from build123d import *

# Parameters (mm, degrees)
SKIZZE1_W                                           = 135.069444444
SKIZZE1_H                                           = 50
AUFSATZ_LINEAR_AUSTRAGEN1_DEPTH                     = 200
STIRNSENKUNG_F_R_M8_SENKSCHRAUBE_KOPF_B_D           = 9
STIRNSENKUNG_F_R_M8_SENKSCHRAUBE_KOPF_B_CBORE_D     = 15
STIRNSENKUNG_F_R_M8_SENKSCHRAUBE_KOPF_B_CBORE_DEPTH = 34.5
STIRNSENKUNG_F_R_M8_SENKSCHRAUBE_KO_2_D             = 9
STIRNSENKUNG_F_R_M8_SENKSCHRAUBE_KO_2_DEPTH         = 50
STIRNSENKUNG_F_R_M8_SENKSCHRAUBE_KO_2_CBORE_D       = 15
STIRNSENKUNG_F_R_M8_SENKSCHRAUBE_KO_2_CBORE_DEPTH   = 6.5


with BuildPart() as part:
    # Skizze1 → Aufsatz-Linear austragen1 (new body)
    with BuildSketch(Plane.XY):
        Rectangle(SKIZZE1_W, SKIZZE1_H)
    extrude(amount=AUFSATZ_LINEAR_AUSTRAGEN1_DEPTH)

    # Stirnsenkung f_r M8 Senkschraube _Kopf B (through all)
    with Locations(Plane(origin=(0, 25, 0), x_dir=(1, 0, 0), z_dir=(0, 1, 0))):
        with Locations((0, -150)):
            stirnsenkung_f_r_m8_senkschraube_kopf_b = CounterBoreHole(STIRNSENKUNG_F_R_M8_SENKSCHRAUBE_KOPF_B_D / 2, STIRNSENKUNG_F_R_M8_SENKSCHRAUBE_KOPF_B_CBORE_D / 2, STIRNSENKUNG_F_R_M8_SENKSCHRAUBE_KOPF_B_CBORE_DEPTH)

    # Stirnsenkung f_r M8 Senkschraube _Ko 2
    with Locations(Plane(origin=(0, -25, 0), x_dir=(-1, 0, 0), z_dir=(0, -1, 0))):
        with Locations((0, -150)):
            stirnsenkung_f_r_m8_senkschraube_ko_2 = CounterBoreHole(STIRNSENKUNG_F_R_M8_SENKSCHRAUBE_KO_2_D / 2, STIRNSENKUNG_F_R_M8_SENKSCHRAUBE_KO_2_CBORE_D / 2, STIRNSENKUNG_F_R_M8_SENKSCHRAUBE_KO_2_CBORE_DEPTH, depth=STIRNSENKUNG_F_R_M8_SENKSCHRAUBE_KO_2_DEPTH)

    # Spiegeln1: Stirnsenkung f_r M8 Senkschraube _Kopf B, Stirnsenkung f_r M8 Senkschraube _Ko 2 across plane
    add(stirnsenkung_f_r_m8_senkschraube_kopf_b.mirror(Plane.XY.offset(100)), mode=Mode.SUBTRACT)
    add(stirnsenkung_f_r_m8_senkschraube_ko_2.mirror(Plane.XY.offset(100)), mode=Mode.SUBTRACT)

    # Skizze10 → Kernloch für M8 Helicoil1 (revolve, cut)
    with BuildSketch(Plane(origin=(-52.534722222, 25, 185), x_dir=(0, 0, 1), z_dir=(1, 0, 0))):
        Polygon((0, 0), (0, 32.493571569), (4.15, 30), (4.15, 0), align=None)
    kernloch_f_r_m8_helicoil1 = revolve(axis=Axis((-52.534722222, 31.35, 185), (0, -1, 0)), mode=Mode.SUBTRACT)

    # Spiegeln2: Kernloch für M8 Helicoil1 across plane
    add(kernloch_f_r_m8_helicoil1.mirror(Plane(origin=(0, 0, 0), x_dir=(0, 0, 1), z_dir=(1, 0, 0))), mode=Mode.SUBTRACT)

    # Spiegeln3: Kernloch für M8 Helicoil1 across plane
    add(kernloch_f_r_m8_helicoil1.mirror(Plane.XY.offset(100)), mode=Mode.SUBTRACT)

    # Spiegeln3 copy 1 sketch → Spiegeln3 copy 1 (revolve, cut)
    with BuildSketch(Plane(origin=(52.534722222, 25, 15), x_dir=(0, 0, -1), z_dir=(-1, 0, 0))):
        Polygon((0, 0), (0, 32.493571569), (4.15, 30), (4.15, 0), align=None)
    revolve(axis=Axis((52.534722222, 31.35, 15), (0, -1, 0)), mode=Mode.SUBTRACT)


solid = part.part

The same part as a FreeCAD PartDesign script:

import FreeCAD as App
import Part
import Sketcher

V = App.Vector
Q = App.Units.Quantity

doc = App.newDocument("Part")
params = doc.addObject("Spreadsheet::Sheet", "Params")
for row, (alias, value) in enumerate([
    ("sketch1_height", "50 mm"),
    ("pad1_length", "200 mm"),
    ("sketch2_diameter", "9 mm"),
    ("hole_diameter", "9 mm"),
    ("hole_cbore_diameter", "15 mm"),
    ("hole_cbore_depth", "34.5 mm"),
    ("sketch3_diameter", "9 mm"),
    ("hole2_diameter", "9 mm"),
    ("hole2_depth", "50 mm"),
    ("hole2_cbore_diameter", "15 mm"),
    ("hole2_cbore_depth", "6.5 mm"),
    ("sketch4_width", "30 mm"),
    ("sketch4_height", "4.15 mm"),
    ("groove_angle", "360 deg"),
    ("sketch5_width", "30 mm"),
    ("sketch5_height", "4.15 mm"),
    ("groove2_angle", "360 deg"),
], start=1):
    params.set(f"A{row}", alias)
    params.set(f"B{row}", "=" + value)
    params.setAlias(f"B{row}", alias)

body = doc.addObject("PartDesign::Body", "Body")

# Sketch on XY plane
sketch1 = doc.addObject("Sketcher::SketchObject", "Sketch")
body.addObject(sketch1)
sketch1.AttachmentSupport = (doc.XY_Plane, [""])
sketch1.MapMode = "FlatFace"
sketch1.addGeometry(Part.LineSegment(V(-67.534722, 25, 0), V(-67.534722, -25, 0)), False)
sketch1.addGeometry(Part.LineSegment(V(-67.534722, -25, 0), V(67.534722, -25, 0)), False)
sketch1.addGeometry(Part.LineSegment(V(67.534722, -25, 0), V(67.534722, 25, 0)), False)
sketch1.addGeometry(Part.LineSegment(V(67.534722, 25, 0), V(-67.534722, 25, 0)), False)
sketch1.addConstraint(Sketcher.Constraint("Coincident", 0, 2, 1, 1))
sketch1.addConstraint(Sketcher.Constraint("Coincident", 1, 2, 2, 1))
sketch1.addConstraint(Sketcher.Constraint("Coincident", 2, 2, 3, 1))
sketch1.addConstraint(Sketcher.Constraint("Coincident", 3, 2, 0, 1))
sketch1.addConstraint(Sketcher.Constraint("Vertical", 0))
sketch1.addConstraint(Sketcher.Constraint("Horizontal", 1))
sketch1.addConstraint(Sketcher.Constraint("Vertical", 2))
sketch1.addConstraint(Sketcher.Constraint("Horizontal", 3))
sketch1.addConstraint(Sketcher.Constraint("Symmetric", 0, 2, 2, 2, -1, 1))
sketch1.addConstraint(Sketcher.Constraint("DistanceY", 0, 2, 0, 1, 50.0))
sketch1.addConstraint(Sketcher.Constraint("DistanceX", 1, 1, 1, 2, 135.069444))
sketch1.setExpression("Constraints[9]", "Params.sketch1_height")
pad1 = doc.addObject("PartDesign::Pad", "Pad")
body.addObject(pad1)
pad1.Profile = sketch1
pad1.setExpression("Length", "Params.pad1_length")

# Sketch on XZ plane
sketch2 = doc.addObject("Sketcher::SketchObject", "Sketch001")
body.addObject(sketch2)
sketch2.AttachmentSupport = (doc.XZ_Plane, [""])
sketch2.MapMode = "FlatFace"
sketch2.AttachmentOffset = App.Placement(V(0, 0, -25), App.Rotation())
sketch2.addGeometry(Part.Circle(V(0, 150, 0), V(0, 0, 1), 4.5), False)
sketch2.addConstraint(Sketcher.Constraint("PointOnObject", 0, 3, -2))
sketch2.addConstraint(Sketcher.Constraint("Diameter", 0, 9.0))
sketch2.addConstraint(Sketcher.Constraint("DistanceY", -1, 1, 0, 3, 150.0))
sketch2.setExpression("Constraints[1]", "Params.sketch2_diameter")
doc.recompute()
hole = doc.addObject("PartDesign::Hole", "Hole")
body.addObject(hole)
hole.Profile = sketch2
hole.ThreadType = "None"
hole.setExpression("Diameter", "Params.hole_diameter")
hole.DepthType = "ThroughAll"
hole.HoleCutType = "Counterbore"
hole.setExpression("HoleCutDiameter", "Params.hole_cbore_diameter")
hole.setExpression("HoleCutDepth", "Params.hole_cbore_depth")
hole.Reversed = True

# Sketch on XZ plane
sketch3 = doc.addObject("Sketcher::SketchObject", "Sketch002")
body.addObject(sketch3)
sketch3.AttachmentSupport = (doc.XZ_Plane, [""])
sketch3.MapMode = "FlatFace"
sketch3.AttachmentOffset = App.Placement(V(0, 0, 25), App.Rotation())
sketch3.addGeometry(Part.Circle(V(0, 150, 0), V(0, 0, 1), 4.5), False)
sketch3.addConstraint(Sketcher.Constraint("PointOnObject", 0, 3, -2))
sketch3.addConstraint(Sketcher.Constraint("Diameter", 0, 9.0))
sketch3.addConstraint(Sketcher.Constraint("DistanceY", -1, 1, 0, 3, 150.0))
sketch3.setExpression("Constraints[1]", "Params.sketch3_diameter")
doc.recompute()
hole2 = doc.addObject("PartDesign::Hole", "Hole001")
body.addObject(hole2)
hole2.Profile = sketch3
hole2.ThreadType = "None"
hole2.setExpression("Diameter", "Params.hole2_diameter")
hole2.DepthType = "Dimension"
hole2.setExpression("Depth", "Params.hole2_depth")
hole2.DrillPoint = "Flat"
hole2.HoleCutType = "Counterbore"
hole2.setExpression("HoleCutDiameter", "Params.hole2_cbore_diameter")
hole2.setExpression("HoleCutDepth", "Params.hole2_cbore_depth")
doc.recompute()

datumplane = doc.addObject("PartDesign::Plane", "DatumPlane")
body.addObject(datumplane)
datumplane.AttachmentSupport = (doc.XY_Plane, [""])
datumplane.MapMode = "FlatFace"
datumplane.AttachmentOffset = App.Placement(V(0, 0, 100), App.Rotation())
mirrored = doc.addObject("PartDesign::Mirrored", "Mirrored")
body.addObject(mirrored)
mirrored.Originals = [hole, hole2]
mirrored.MirrorPlane = (datumplane, [""])
body.Tip = mirrored

# Sketch on YZ plane
sketch4 = doc.addObject("Sketcher::SketchObject", "Sketch003")
body.addObject(sketch4)
sketch4.AttachmentSupport = (doc.YZ_Plane, [""])
sketch4.MapMode = "FlatFace"
sketch4.AttachmentOffset = App.Placement(V(0, 0, -52.534722), App.Rotation())
sketch4.addGeometry(Part.LineSegment(V(-7.493572, 185, 0), V(25, 185, 0)), False)
sketch4.addGeometry(Part.LineSegment(V(25, 185, 0), V(25, 189.15, 0)), False)
sketch4.addGeometry(Part.LineSegment(V(25, 189.15, 0), V(-5, 189.15, 0)), False)
sketch4.addGeometry(Part.LineSegment(V(-5, 189.15, 0), V(-7.493572, 185, 0)), False)
sketch4.addGeometry(Part.LineSegment(V(25, 185, 0), V(-7.493572, 185, 0)), True)  # axis
sketch4.addConstraint(Sketcher.Constraint("Coincident", 0, 2, 1, 1))
sketch4.addConstraint(Sketcher.Constraint("Coincident", 1, 2, 2, 1))
sketch4.addConstraint(Sketcher.Constraint("Coincident", 2, 2, 3, 1))
sketch4.addConstraint(Sketcher.Constraint("Coincident", 3, 2, 0, 1))
sketch4.addConstraint(Sketcher.Constraint("Horizontal", 0))
sketch4.addConstraint(Sketcher.Constraint("Vertical", 1))
sketch4.addConstraint(Sketcher.Constraint("Horizontal", 2))
sketch4.addConstraint(Sketcher.Constraint("Horizontal", 4))
sketch4.addConstraint(Sketcher.Constraint("Coincident", 4, 1, 0, 2))
sketch4.addConstraint(Sketcher.Constraint("Equal", 0, 4))
sketch4.addConstraint(Sketcher.Constraint("DistanceX", 2, 2, 2, 1, 30.0))
sketch4.addConstraint(Sketcher.Constraint("Angle", 3, Q("-121 deg")))
sketch4.addConstraint(Sketcher.Constraint("DistanceX", -1, 1, 0, 2, 25.0))
sketch4.addConstraint(Sketcher.Constraint("DistanceY", -1, 1, 0, 2, 185.0))
sketch4.addConstraint(Sketcher.Constraint("DistanceY", 1, 1, 1, 2, 4.15))
sketch4.setExpression("Constraints[10]", "Params.sketch4_width")
sketch4.setExpression("Constraints[14]", "Params.sketch4_height")
groove = doc.addObject("PartDesign::Groove", "Groove")
body.addObject(groove)
groove.Profile = sketch4
groove.ReferenceAxis = (sketch4, ["Axis0"])
groove.setExpression("Angle", "Params.groove_angle")
doc.recompute()

mirrored2 = doc.addObject("PartDesign::Mirrored", "Mirrored001")
body.addObject(mirrored2)
mirrored2.Originals = [groove]
mirrored2.MirrorPlane = (doc.YZ_Plane, [""])
body.Tip = mirrored2
doc.recompute()

datumplane2 = doc.addObject("PartDesign::Plane", "DatumPlane001")
body.addObject(datumplane2)
datumplane2.AttachmentSupport = (doc.XY_Plane, [""])
datumplane2.MapMode = "FlatFace"
datumplane2.AttachmentOffset = App.Placement(V(0, 0, 100), App.Rotation())
mirrored3 = doc.addObject("PartDesign::Mirrored", "Mirrored002")
body.addObject(mirrored3)
mirrored3.Originals = [groove]
mirrored3.MirrorPlane = (datumplane2, [""])
body.Tip = mirrored3

# Sketch on YZ plane
sketch5 = doc.addObject("Sketcher::SketchObject", "Sketch004")
body.addObject(sketch5)
sketch5.AttachmentSupport = (doc.YZ_Plane, [""])
sketch5.MapMode = "FlatFace"
sketch5.AttachmentOffset = App.Placement(V(0, 0, 52.534722), App.Rotation())
sketch5.addGeometry(Part.LineSegment(V(-7.493572, 15, 0), V(25, 15, 0)), False)
sketch5.addGeometry(Part.LineSegment(V(25, 15, 0), V(25, 10.85, 0)), False)
sketch5.addGeometry(Part.LineSegment(V(25, 10.85, 0), V(-5, 10.85, 0)), False)
sketch5.addGeometry(Part.LineSegment(V(-5, 10.85, 0), V(-7.493572, 15, 0)), False)
sketch5.addGeometry(Part.LineSegment(V(25, 15, 0), V(-7.493572, 15, 0)), True)  # axis
sketch5.addConstraint(Sketcher.Constraint("Coincident", 0, 2, 1, 1))
sketch5.addConstraint(Sketcher.Constraint("Coincident", 1, 2, 2, 1))
sketch5.addConstraint(Sketcher.Constraint("Coincident", 2, 2, 3, 1))
sketch5.addConstraint(Sketcher.Constraint("Coincident", 3, 2, 0, 1))
sketch5.addConstraint(Sketcher.Constraint("Horizontal", 0))
sketch5.addConstraint(Sketcher.Constraint("Vertical", 1))
sketch5.addConstraint(Sketcher.Constraint("Horizontal", 2))
sketch5.addConstraint(Sketcher.Constraint("Horizontal", 4))
sketch5.addConstraint(Sketcher.Constraint("Coincident", 4, 1, 0, 2))
sketch5.addConstraint(Sketcher.Constraint("Equal", 0, 4))
sketch5.addConstraint(Sketcher.Constraint("DistanceX", 2, 2, 2, 1, 30.0))
sketch5.addConstraint(Sketcher.Constraint("Angle", 3, Q("121 deg")))
sketch5.addConstraint(Sketcher.Constraint("DistanceX", -1, 1, 0, 2, 25.0))
sketch5.addConstraint(Sketcher.Constraint("DistanceY", -1, 1, 0, 2, 15.0))
sketch5.addConstraint(Sketcher.Constraint("DistanceY", 1, 2, 1, 1, 4.15))
sketch5.setExpression("Constraints[10]", "Params.sketch5_width")
sketch5.setExpression("Constraints[14]", "Params.sketch5_height")
groove2 = doc.addObject("PartDesign::Groove", "Groove001")
body.addObject(groove2)
groove2.Profile = sketch5
groove2.ReferenceAxis = (sketch5, ["Axis0"])
groove2.setExpression("Angle", "Params.groove2_angle")

doc.recompute()
